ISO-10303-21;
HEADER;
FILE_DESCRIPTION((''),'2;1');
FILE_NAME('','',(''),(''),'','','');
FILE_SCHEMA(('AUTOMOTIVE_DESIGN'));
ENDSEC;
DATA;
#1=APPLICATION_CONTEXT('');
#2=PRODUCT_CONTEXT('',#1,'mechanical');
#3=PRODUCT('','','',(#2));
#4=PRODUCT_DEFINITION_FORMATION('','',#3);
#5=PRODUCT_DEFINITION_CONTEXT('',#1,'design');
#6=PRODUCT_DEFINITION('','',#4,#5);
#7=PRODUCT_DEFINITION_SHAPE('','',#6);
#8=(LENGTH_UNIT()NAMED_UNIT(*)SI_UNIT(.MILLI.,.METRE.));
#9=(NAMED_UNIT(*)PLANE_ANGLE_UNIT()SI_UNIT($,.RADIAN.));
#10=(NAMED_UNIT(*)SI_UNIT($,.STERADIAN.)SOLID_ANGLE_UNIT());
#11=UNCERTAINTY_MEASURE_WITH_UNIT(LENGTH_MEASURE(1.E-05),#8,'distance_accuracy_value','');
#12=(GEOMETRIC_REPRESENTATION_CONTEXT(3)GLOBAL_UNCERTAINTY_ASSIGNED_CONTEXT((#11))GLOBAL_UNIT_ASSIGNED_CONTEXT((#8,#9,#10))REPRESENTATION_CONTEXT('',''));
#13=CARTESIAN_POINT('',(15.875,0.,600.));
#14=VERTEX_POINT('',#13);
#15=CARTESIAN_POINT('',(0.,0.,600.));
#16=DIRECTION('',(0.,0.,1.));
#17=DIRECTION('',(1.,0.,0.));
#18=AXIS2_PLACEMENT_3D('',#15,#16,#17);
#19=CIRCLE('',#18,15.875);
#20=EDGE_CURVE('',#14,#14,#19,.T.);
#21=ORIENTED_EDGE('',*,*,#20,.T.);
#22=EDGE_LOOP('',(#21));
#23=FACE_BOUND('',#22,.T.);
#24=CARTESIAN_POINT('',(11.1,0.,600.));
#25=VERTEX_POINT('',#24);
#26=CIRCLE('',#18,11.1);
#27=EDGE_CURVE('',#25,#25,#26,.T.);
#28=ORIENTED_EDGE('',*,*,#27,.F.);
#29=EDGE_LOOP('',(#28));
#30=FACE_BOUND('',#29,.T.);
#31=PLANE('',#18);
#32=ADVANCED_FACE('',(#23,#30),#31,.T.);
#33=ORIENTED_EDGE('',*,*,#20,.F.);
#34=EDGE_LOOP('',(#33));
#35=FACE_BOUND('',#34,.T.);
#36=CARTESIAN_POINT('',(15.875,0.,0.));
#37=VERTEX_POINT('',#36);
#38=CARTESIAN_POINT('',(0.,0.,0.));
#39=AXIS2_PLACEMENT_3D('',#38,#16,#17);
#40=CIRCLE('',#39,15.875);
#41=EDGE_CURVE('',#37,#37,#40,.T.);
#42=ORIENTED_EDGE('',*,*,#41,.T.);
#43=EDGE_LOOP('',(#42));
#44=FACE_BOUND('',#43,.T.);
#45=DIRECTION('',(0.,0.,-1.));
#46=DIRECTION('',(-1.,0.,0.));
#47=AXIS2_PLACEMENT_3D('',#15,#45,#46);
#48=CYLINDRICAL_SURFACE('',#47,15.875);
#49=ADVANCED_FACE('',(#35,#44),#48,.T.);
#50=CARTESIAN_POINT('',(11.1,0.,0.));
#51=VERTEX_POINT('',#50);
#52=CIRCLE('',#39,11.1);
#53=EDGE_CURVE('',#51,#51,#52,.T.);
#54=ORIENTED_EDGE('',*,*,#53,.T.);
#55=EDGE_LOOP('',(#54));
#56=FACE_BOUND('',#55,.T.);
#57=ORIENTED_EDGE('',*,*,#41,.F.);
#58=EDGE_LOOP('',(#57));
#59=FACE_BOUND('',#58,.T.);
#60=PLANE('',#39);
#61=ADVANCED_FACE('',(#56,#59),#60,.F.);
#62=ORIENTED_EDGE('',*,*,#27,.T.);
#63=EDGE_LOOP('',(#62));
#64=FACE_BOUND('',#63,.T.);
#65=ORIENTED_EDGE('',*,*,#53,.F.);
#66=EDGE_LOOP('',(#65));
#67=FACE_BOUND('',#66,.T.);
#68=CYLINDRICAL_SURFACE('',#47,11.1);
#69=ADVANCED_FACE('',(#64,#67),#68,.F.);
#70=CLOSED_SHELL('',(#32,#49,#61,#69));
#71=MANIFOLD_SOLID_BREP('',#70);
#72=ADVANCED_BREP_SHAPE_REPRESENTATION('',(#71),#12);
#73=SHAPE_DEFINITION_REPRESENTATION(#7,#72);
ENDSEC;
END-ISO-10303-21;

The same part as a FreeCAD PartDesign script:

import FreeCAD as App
import Part
import Sketcher

V = App.Vector

doc = App.newDocument("Part")
body = doc.addObject("PartDesign::Body", "Body")

# Sketch on XY plane
sketch1 = body.newObject("Sketcher::SketchObject", "Sketch")
sketch1.AttachmentSupport = (doc.getObject("XY_Plane"), [""])
sketch1.MapMode = "FlatFace"
sketch1.addGeometry(Part.Circle(V(0, 0, 0), V(0, 0, 1), 16), False)
sketch1.addGeometry(Part.Circle(V(0, 0, 0), V(0, 0, 1), 11), False)
sketch1.addConstraint(Sketcher.Constraint("Coincident", 0, 3, -1, 1))
sketch1.addConstraint(Sketcher.Constraint("Coincident", 1, 3, -1, 1))
sketch1.addConstraint(Sketcher.Constraint("Diameter", 1, 22.2))
sketch1.addConstraint(Sketcher.Constraint("Diameter", 0, 31.75))
pad1 = body.newObject("PartDesign::Pad", "Pad")
pad1.Profile = sketch1
pad1.Length = 600

doc.recompute()
